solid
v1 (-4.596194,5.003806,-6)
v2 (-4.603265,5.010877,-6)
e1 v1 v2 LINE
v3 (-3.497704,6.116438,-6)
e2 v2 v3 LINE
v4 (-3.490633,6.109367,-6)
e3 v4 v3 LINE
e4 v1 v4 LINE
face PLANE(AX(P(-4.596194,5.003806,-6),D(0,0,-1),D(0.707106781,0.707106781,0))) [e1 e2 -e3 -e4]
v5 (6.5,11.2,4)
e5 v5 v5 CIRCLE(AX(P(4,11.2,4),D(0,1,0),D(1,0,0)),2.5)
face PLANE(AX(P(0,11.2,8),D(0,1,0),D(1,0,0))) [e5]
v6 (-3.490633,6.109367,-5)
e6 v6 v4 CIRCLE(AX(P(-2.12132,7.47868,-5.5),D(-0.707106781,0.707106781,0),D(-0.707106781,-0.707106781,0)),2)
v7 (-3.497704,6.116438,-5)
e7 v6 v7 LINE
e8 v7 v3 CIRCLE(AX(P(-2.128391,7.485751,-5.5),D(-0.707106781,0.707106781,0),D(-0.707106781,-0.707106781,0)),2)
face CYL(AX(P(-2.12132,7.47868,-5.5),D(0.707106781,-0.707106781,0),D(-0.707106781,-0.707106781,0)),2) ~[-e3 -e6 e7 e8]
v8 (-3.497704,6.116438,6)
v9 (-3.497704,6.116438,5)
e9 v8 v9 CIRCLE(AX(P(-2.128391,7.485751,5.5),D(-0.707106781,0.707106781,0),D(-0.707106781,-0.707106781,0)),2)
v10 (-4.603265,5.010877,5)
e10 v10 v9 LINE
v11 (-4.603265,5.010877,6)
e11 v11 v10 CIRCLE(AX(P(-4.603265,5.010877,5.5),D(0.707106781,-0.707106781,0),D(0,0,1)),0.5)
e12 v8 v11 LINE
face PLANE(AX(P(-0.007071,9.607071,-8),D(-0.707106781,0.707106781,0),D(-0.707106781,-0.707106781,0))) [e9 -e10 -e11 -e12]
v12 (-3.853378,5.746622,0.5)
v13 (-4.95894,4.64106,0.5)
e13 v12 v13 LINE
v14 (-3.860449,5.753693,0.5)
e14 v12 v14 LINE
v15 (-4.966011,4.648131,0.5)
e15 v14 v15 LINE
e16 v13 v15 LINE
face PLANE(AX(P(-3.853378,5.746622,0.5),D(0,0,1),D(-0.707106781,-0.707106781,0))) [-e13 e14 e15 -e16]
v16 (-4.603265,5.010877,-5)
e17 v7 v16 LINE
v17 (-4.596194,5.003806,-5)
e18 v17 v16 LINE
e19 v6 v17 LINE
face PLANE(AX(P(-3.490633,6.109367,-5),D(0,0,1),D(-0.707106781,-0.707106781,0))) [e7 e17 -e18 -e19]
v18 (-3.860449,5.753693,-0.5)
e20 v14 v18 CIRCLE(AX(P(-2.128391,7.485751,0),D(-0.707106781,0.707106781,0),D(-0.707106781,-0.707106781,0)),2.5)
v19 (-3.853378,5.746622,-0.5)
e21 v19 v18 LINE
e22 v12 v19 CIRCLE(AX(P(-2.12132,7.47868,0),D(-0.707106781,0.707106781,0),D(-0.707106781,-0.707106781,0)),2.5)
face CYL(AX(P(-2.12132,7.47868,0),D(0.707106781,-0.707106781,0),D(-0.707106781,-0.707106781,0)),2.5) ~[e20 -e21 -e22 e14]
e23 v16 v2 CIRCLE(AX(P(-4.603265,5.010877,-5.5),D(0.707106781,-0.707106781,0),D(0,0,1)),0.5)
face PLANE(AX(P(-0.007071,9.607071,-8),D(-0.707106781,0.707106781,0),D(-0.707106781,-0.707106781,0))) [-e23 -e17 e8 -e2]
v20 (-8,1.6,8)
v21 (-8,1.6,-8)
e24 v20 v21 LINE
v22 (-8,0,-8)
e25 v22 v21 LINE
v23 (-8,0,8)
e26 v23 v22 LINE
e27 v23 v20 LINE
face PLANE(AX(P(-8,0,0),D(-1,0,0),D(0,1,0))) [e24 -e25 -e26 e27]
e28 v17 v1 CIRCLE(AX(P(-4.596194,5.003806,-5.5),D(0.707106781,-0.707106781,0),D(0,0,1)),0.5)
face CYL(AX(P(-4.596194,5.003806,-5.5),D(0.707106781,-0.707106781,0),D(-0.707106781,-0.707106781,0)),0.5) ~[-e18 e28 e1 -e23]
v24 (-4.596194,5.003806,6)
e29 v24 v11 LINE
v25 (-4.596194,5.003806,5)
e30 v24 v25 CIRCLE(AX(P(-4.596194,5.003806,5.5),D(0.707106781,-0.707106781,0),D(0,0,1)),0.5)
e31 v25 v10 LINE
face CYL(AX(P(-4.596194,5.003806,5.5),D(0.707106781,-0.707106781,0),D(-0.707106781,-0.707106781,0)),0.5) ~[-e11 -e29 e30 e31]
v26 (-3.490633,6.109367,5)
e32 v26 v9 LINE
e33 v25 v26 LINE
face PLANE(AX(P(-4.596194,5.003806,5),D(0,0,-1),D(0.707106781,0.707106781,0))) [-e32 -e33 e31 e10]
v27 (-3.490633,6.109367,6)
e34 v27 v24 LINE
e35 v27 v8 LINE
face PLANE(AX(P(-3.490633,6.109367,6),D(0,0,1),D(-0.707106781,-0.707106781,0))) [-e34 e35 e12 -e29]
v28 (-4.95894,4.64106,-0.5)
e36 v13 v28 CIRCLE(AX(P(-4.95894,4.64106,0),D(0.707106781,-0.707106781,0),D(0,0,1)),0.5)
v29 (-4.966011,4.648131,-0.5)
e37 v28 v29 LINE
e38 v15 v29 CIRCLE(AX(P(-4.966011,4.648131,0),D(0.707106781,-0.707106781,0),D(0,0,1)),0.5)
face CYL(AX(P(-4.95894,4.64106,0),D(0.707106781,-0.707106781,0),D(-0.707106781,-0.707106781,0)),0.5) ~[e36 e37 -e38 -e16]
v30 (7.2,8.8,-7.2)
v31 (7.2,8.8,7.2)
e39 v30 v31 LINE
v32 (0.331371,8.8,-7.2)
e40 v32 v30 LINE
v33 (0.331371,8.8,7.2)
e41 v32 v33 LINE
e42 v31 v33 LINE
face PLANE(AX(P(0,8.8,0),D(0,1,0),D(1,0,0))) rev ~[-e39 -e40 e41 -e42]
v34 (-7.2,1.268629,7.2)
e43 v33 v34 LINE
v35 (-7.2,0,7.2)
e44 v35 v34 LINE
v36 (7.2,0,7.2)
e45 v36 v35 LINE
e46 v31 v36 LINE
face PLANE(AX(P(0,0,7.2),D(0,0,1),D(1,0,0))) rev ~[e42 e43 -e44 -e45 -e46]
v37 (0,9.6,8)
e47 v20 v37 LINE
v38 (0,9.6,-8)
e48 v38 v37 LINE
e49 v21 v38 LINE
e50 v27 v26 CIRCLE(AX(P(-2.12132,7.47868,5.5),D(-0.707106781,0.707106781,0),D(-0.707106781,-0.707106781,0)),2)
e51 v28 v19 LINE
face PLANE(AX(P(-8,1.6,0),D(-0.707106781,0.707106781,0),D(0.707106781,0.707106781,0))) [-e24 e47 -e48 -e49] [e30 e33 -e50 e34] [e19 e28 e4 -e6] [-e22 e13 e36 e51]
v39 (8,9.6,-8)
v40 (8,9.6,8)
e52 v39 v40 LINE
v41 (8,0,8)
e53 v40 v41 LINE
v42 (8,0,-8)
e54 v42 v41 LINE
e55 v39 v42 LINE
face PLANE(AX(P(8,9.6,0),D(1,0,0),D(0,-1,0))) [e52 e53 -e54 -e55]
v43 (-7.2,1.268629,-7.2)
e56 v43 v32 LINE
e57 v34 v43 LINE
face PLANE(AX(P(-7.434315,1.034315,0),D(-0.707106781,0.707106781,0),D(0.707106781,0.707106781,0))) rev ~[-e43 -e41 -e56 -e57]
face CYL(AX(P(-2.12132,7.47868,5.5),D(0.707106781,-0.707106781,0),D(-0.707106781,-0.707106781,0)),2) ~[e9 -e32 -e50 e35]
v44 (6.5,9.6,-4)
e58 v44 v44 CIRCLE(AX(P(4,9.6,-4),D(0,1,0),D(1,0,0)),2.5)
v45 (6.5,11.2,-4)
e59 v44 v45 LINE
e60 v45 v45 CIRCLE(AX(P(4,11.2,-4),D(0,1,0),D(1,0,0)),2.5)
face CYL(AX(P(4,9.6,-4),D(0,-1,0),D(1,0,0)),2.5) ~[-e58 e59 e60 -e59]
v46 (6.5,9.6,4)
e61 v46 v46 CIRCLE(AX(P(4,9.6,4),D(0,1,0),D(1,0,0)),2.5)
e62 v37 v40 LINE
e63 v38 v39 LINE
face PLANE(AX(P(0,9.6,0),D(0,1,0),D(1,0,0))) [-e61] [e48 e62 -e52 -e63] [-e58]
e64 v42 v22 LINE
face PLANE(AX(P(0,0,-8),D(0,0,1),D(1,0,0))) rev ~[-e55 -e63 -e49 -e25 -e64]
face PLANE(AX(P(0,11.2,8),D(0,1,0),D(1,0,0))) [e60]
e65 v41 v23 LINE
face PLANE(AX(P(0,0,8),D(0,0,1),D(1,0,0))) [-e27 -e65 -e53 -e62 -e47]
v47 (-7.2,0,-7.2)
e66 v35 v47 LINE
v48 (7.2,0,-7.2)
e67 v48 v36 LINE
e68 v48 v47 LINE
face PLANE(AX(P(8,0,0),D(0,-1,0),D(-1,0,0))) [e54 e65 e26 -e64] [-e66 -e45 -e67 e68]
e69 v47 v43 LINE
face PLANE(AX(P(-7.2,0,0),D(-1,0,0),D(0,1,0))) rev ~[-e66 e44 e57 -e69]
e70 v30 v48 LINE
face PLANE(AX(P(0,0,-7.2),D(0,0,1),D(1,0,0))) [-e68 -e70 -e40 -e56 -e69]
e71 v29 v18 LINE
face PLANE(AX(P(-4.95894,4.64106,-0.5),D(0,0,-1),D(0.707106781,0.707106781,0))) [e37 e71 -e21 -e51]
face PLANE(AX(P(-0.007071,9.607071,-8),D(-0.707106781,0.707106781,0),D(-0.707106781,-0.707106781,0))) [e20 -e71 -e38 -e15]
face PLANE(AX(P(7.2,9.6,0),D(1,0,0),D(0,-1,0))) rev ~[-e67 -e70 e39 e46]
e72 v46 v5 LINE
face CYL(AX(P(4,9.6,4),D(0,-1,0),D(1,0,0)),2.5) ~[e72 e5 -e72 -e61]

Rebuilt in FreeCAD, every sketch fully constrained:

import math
import FreeCAD as App
import Part
import Sketcher


def faces_at(feature, points):
    """Names of the faces that lie closest to the given points."""
    faces = feature.Shape.Faces
    near = lambda p: min(range(len(faces)), key=lambda i: faces[i].distToShape(Part.Vertex(*p))[0])
    return sorted({f"Face{near(p) + 1}" for p in points})

doc = App.newDocument("Part")
body = doc.addObject("PartDesign::Body", "Body")

sketch1 = body.newObject("Sketcher::SketchObject", "Sketch")
sketch1.AttachmentSupport = (doc.getObject("XY_Plane"), [""])
sketch1.MapMode = "FlatFace"
sketch1.addGeometry([
    Part.LineSegment(App.Vector(-8, 0, 0), App.Vector(8, 0, 0)),
    Part.LineSegment(App.Vector(8, 0, 0), App.Vector(8, 9.6, 0)),
    Part.LineSegment(App.Vector(8, 9.6, 0), App.Vector(0, 9.6, 0)),
    Part.LineSegment(App.Vector(0, 9.6, 0), App.Vector(-8, 1.6, 0)),
    Part.LineSegment(App.Vector(-8, 1.6, 0), App.Vector(-8, 0, 0)),
], False)
sketch1.addConstraint([
    Sketcher.Constraint("Coincident", 0, 2, 1, 1),
    Sketcher.Constraint("Coincident", 1, 2, 2, 1),
    Sketcher.Constraint("Coincident", 2, 2, 3, 1),
    Sketcher.Constraint("Coincident", 3, 2, 4, 1),
    Sketcher.Constraint("Coincident", 4, 2, 0, 1),
    Sketcher.Constraint("Horizontal", 0),
    Sketcher.Constraint("Vertical", 1),
    Sketcher.Constraint("Horizontal", 2),
    Sketcher.Constraint("Vertical", 4),
    Sketcher.Constraint("Symmetric", 0, 2, 4, 2, -1, 1),
    Sketcher.Constraint("PointOnObject", 2, 2, -2),
    Sketcher.Constraint("DistanceX", 0, 1, 0, 2, 16.0),
    Sketcher.Constraint("DistanceY", 1, 1, 1, 2, 9.6),
    Sketcher.Constraint("DistanceY", 4, 2, 4, 1, 1.6),
])
pad1 = body.newObject("PartDesign::Pad", "Pad")
pad1.Profile = sketch1
pad1.Length = 16
pad1.Midplane = True
doc.recompute()

thickness = body.newObject("PartDesign::Thickness", "Thickness")
thickness.Base = (pad1, faces_at(pad1, [(-2.667, 0, 2.667)]))
thickness.Value = 0.8
thickness.Reversed = True
thickness.Join = "Intersection"

sketch2 = body.newObject("Sketcher::SketchObject", "Sketch001")
sketch2.AttachmentSupport = (doc.getObject("XZ_Plane"), [""])
sketch2.MapMode = "FlatFace"
sketch2.AttachmentOffset = App.Placement(App.Vector(0, 0, -9.6), App.Rotation())
sketch2.addGeometry([
    Part.Circle(App.Vector(4, -4, 0), App.Vector(0, 0, 1), 2.5),
    Part.Circle(App.Vector(4, 4, 0), App.Vector(0, 0, 1), 2.5),
], False)
sketch2.addConstraint([
    Sketcher.Constraint("Equal", 0, 1),
    Sketcher.Constraint("Symmetric", 0, 3, 1, 3, -1),
    Sketcher.Constraint("Diameter", 0, 5.0),
    Sketcher.Constraint("DistanceX", -1, 1, 0, 3, 4.0),
    Sketcher.Constraint("DistanceY", 0, 3, -1, 1, 4.0),
])
pad2 = body.newObject("PartDesign::Pad", "Pad001")
pad2.Profile = sketch2
pad2.Length = 1.6
pad2.Reversed = True

sketch3 = body.newObject("Sketcher::SketchObject", "Sketch002")
sketch3.Placement = App.Placement(App.Vector(0, 9.6, -8), App.Rotation(App.Vector(-0.707106781, -0.707106781, 0), App.Vector(0, 0, 0.999999999), App.Vector(-0.707106781, 0.707106781, 0), "ZXY"))
sketch3.addGeometry([
    Part.LineSegment(App.Vector(4.9, 2, 0), App.Vector(6.5, 2, 0)),
    Part.ArcOfCircle(Part.Circle(App.Vector(6.5, 2.5, 0), App.Vector(0, 0, 1), 0.5), math.radians(-90), math.radians(90)),
    Part.LineSegment(App.Vector(6.5, 3, 0), App.Vector(4.9, 3, 0)),
    Part.ArcOfCircle(Part.Circle(App.Vector(3, 2.5, 0), App.Vector(0, 0, 1), 2), math.radians(14), math.radians(346)),
    Part.LineSegment(App.Vector(5.4, 7.5, 0), App.Vector(7, 7.5, 0)),
    Part.ArcOfCircle(Part.Circle(App.Vector(7, 8, 0), App.Vector(0, 0, 1), 0.5), math.radians(-90), math.radians(90)),
    Part.LineSegment(App.Vector(7, 8.5, 0), App.Vector(5.4, 8.5, 0)),
    Part.ArcOfCircle(Part.Circle(App.Vector(3, 8, 0), App.Vector(0, 0, 1), 2.5), math.radians(12), math.radians(348)),
    Part.LineSegment(App.Vector(4.9, 13, 0), App.Vector(6.5, 13, 0)),
    Part.ArcOfCircle(Part.Circle(App.Vector(6.5, 13.5, 0), App.Vector(0, 0, 1), 0.5), math.radians(-90), math.radians(90)),
    Part.LineSegment(App.Vector(6.5, 14, 0), App.Vector(4.9, 14, 0)),
    Part.ArcOfCircle(Part.Circle(App.Vector(3, 13.5, 0), App.Vector(0, 0, 1), 2), math.radians(14), math.radians(346)),
], False)
sketch3.addConstraint([
    Sketcher.Constraint("Tangent", 0, 2, 1, 1),
    Sketcher.Constraint("Tangent", 1, 2, 2, 1),
    Sketcher.Constraint("Coincident", 2, 2, 3, 1),
    Sketcher.Constraint("Coincident", 3, 2, 0, 1),
    Sketcher.Constraint("Tangent", 4, 2, 5, 1),
    Sketcher.Constraint("Tangent", 5, 2, 6, 1),
    Sketcher.Constraint("Coincident", 6, 2, 7, 1),
    Sketcher.Constraint("Coincident", 7, 2, 4, 1),
    Sketcher.Constraint("Tangent", 8, 2, 9, 1),
    Sketcher.Constraint("Tangent", 9, 2, 10, 1),
    Sketcher.Constraint("Coincident", 10, 2, 11, 1),
    Sketcher.Constraint("Coincident", 11, 2, 8, 1),
    Sketcher.Constraint("Horizontal", 0),
    Sketcher.Constraint("Horizontal", 2),
    Sketcher.Constraint("Horizontal", 4),
    Sketcher.Constraint("Horizontal", 6),
    Sketcher.Constraint("Horizontal", 8),
    Sketcher.Constraint("Horizontal", 10),
    Sketcher.Constraint("Equal", 1, 5),
    Sketcher.Constraint("Equal", 5, 9),
    Sketcher.Constraint("Equal", 3, 11),
    Sketcher.Constraint("Horizontal", 1, 3, 3, 3),
    Sketcher.Constraint("Horizontal", 5, 3, 7, 3),
    Sketcher.Constraint("Horizontal", 9, 3, 11, 3),
    Sketcher.Constraint("Vertical", 3, 3, 7, 3),
    Sketcher.Constraint("Vertical", 1, 3, 9, 3),
    Sketcher.Constraint("Vertical", 7, 3, 11, 3),
    Sketcher.Constraint("Equal", 2, 4),
    Sketcher.Constraint("Radius", 3, 2.0),
    Sketcher.Constraint("Radius", 1, 0.5),
    Sketcher.Constraint("Radius", 7, 2.5),
    Sketcher.Constraint("DistanceX", -1, 1, 3, 3, 3.0),
    Sketcher.Constraint("DistanceY", -1, 1, 1, 2, 3.0),
    Sketcher.Constraint("DistanceY", 1, 2, 5, 3, 5.0),
    Sketcher.Constraint("DistanceY", 5, 2, 9, 3, 5.0),
    Sketcher.Constraint("DistanceX", 3, 3, 1, 3, 3.5),
])
pad3 = body.newObject("PartDesign::Pad", "Pad002")
pad3.Profile = sketch3
pad3.Length = 0.01

doc.recompute()
